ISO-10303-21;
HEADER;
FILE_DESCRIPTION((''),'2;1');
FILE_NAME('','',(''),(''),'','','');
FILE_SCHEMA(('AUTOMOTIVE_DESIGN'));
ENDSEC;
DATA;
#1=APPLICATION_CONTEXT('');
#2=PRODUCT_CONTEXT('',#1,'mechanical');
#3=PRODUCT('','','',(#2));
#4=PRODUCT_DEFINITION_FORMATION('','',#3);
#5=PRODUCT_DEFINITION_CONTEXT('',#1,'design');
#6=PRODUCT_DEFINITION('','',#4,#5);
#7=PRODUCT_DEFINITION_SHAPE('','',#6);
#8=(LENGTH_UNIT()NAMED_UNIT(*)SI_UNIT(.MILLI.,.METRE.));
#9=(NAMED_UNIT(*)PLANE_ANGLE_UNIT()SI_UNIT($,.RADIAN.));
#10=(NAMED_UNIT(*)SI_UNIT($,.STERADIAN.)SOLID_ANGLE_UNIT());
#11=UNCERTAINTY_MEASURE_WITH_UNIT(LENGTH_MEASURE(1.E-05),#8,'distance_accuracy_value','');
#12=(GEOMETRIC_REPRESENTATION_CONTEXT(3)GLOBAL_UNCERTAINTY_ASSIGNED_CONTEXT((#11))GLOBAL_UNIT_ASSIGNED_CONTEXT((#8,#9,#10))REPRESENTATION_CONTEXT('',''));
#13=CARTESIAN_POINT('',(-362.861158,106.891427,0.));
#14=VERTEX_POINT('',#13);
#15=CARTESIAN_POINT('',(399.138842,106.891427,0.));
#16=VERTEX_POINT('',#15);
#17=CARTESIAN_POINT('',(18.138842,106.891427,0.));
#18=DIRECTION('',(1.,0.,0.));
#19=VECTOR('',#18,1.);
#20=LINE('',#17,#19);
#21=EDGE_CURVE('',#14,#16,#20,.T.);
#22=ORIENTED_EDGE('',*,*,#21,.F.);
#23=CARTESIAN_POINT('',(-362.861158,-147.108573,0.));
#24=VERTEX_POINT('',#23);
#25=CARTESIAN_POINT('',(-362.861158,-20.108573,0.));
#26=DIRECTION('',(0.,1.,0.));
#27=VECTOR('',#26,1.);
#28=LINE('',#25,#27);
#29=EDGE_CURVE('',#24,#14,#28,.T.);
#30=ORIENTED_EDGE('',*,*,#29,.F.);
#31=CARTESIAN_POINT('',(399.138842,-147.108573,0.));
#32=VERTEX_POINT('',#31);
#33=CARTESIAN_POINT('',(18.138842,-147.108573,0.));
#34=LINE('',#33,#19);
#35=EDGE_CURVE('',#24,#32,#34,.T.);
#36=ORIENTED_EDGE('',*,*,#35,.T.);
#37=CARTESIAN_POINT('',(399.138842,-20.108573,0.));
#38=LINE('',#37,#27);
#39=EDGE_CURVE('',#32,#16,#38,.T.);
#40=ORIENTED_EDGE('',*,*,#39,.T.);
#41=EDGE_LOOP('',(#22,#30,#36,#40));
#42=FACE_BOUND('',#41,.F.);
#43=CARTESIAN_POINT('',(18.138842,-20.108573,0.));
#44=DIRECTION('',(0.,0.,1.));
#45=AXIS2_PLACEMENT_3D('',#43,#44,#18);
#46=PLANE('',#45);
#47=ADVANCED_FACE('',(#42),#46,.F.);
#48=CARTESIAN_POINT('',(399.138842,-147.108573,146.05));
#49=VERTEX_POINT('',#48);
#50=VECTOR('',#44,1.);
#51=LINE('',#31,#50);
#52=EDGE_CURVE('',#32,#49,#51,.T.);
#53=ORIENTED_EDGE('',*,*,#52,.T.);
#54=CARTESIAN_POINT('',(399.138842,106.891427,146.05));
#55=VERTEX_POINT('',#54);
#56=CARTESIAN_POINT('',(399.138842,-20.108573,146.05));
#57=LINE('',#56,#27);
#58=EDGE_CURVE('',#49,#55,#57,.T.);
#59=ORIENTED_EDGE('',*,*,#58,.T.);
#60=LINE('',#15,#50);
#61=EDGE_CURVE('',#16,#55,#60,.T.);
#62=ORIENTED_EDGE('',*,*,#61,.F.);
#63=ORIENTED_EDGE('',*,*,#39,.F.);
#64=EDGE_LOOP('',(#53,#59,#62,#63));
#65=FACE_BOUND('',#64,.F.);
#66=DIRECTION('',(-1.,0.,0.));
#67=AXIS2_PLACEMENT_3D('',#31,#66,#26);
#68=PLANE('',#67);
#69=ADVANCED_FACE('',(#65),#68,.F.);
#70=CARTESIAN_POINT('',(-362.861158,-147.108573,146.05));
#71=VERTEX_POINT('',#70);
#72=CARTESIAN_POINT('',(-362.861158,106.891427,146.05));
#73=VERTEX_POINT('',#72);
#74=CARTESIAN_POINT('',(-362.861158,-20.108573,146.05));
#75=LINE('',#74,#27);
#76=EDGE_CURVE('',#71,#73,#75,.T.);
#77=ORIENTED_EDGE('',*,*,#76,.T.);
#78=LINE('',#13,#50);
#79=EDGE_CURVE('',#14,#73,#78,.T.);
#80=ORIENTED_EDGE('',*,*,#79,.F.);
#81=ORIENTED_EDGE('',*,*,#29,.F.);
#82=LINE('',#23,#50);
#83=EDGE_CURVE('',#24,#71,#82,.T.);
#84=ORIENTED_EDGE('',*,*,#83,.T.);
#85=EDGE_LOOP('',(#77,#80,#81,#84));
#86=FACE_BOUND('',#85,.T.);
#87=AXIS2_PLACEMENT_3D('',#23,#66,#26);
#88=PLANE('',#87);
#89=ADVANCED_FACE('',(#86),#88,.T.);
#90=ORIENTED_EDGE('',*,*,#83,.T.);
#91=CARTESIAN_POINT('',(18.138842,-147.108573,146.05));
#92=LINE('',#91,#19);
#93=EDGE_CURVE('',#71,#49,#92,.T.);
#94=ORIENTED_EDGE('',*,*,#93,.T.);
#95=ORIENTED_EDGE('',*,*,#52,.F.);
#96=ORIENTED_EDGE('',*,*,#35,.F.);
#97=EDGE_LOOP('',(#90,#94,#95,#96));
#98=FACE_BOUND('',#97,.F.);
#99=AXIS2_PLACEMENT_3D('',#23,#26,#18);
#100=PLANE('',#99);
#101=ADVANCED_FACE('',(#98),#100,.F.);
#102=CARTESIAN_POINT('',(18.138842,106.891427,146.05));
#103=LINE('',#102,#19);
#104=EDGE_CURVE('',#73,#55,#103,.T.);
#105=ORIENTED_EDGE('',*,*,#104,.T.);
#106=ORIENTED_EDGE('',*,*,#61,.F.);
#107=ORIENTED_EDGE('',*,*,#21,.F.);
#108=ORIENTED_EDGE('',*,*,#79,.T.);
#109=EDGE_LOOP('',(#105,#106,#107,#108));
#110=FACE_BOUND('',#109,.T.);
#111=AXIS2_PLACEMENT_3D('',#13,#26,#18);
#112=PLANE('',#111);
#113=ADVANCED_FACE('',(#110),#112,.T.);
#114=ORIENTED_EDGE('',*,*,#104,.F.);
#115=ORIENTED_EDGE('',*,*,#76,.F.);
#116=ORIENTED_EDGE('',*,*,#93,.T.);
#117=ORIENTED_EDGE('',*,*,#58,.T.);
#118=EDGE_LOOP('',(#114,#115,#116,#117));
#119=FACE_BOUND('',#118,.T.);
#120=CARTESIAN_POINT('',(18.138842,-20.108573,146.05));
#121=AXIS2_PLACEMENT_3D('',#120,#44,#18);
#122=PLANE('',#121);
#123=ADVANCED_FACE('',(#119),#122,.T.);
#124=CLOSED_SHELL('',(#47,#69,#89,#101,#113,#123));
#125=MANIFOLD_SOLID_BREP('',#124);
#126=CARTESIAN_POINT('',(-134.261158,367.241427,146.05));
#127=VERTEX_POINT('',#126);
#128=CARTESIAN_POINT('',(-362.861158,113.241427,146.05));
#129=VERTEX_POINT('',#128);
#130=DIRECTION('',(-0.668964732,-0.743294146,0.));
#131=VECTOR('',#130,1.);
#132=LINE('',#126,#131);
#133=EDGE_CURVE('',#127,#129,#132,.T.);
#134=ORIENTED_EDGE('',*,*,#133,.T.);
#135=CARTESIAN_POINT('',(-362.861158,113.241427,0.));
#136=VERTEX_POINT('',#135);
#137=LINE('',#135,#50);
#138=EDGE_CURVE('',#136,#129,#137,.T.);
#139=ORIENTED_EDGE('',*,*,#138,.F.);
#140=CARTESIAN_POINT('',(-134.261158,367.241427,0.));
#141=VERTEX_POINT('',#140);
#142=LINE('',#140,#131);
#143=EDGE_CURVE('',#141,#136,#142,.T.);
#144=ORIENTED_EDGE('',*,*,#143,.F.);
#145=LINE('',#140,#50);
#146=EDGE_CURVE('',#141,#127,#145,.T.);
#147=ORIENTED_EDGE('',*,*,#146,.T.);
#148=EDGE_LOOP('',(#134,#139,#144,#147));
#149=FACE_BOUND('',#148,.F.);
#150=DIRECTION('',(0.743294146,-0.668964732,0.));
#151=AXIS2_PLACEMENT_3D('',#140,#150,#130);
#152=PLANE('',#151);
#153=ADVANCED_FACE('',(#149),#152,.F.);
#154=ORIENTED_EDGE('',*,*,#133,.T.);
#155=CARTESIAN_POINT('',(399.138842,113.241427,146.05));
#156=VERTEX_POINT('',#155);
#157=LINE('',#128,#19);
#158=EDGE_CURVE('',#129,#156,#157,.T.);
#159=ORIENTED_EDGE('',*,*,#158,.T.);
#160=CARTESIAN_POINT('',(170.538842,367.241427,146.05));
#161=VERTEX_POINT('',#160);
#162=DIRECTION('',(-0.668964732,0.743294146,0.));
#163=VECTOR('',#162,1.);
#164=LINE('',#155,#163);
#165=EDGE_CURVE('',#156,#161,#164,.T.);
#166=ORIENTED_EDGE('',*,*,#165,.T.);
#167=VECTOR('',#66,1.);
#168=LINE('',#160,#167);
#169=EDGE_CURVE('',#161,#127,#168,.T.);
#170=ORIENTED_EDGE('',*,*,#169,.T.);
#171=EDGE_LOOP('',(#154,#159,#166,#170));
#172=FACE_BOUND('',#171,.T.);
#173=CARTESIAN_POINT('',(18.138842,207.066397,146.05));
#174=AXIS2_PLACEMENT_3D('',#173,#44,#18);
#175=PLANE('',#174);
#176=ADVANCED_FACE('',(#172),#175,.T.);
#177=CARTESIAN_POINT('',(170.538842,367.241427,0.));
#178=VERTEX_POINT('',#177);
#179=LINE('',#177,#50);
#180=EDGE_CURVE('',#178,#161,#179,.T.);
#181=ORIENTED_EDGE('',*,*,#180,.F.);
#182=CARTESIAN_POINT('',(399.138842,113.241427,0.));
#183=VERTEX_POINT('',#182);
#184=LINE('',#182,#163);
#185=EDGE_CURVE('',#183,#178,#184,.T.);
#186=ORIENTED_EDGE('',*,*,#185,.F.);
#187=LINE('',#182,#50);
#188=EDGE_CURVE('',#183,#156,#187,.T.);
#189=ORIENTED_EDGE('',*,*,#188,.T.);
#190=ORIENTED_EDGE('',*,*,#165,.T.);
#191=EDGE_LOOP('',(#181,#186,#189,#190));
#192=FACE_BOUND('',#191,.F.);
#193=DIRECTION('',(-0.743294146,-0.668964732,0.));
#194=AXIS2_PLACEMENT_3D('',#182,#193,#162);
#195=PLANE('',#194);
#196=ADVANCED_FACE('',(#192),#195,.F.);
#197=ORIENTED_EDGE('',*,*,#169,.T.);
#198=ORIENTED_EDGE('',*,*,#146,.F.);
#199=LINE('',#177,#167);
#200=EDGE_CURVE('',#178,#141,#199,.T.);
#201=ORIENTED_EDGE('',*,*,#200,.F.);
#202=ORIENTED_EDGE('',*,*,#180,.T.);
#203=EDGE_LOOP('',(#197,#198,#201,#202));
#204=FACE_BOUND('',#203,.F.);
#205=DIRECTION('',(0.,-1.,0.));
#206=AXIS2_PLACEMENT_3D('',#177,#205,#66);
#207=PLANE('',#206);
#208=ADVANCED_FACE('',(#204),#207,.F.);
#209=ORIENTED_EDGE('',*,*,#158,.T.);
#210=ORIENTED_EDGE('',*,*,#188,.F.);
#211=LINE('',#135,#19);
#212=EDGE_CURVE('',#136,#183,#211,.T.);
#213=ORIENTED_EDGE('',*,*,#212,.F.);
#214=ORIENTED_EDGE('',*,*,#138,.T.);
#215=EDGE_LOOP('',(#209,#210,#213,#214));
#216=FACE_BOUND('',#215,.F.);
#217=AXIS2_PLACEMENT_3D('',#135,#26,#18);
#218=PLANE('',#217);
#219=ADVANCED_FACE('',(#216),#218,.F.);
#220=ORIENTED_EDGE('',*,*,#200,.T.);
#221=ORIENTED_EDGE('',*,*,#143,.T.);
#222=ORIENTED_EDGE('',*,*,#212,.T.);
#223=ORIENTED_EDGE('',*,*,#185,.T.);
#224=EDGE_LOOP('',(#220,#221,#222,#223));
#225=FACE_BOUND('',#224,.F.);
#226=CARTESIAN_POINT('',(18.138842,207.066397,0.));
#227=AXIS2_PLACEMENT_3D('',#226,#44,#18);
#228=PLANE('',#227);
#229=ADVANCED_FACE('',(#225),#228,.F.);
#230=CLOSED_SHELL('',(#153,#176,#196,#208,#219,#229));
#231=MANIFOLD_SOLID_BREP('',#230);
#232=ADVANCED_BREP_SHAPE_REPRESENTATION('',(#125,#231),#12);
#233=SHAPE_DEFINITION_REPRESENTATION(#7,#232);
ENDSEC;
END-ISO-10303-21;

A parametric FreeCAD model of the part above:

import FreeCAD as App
import Part
import Sketcher
from FreeCAD import Vector
Q = App.Units.Quantity


def add_polygon(sketch, points):
    """Adds a closed chain of lines whose ends are joined by coincident constraints."""
    first, n = sketch.GeometryCount, len(points)
    for a, b in zip(points, points[1:] + points[:1]):
        sketch.addGeometry(Part.LineSegment(App.Vector(*a, 0), App.Vector(*b, 0)), False)
    for i in range(n):
        sketch.addConstraint(Sketcher.Constraint("Coincident", first + i, 2, first + (i + 1) % n, 1))

doc = App.newDocument("Part")
body = doc.addObject("PartDesign::Body", "Body")

sketch1 = body.newObject("Sketcher::SketchObject", "Sketch")
sketch1.AttachmentSupport = (doc.getObject("XY_Plane"), [""])
sketch1.MapMode = "FlatFace"
add_polygon(sketch1, [(-363, 107), (-363, -147), (399, -147), (399, 107)])
sketch1.addConstraint(Sketcher.Constraint("Vertical", 0))
sketch1.addConstraint(Sketcher.Constraint("Horizontal", 1))
sketch1.addConstraint(Sketcher.Constraint("Vertical", 2))
sketch1.addConstraint(Sketcher.Constraint("Horizontal", 3))
sketch1.addConstraint(Sketcher.Constraint("DistanceX", 1, 1, 1, 2, Q("30 in")))
sketch1.addConstraint(Sketcher.Constraint("DistanceY", 0, 2, 0, 1, Q("10 in")))
sketch1.addConstraint(Sketcher.Constraint("DistanceX", 0, 2, -1, 1, Q("362.861158 mm")))
sketch1.addConstraint(Sketcher.Constraint("DistanceY", 0, 2, -1, 1, Q("147.108573 mm")))
pad1 = body.newObject("PartDesign::Pad", "Pad")
pad1.Profile = sketch1
pad1.Length = Q("5.75 in")
body2 = doc.addObject("PartDesign::Body", "Body001")

sketch2 = body2.newObject("Sketcher::SketchObject", "Sketch001")
sketch2.AttachmentSupport = (doc.getObject("XY_Plane001"), [""])
sketch2.MapMode = "FlatFace"
add_polygon(sketch2, [(-134, 367), (-363, 113), (399, 113), (171, 367)])
sketch2.addConstraint(Sketcher.Constraint("Horizontal", 1))
sketch2.addConstraint(Sketcher.Constraint("Horizontal", 3))
sketch2.addConstraint(Sketcher.Constraint("Equal", 0, 2))
sketch2.addConstraint(Sketcher.Constraint("DistanceX", 1, 1, 1, 2, Q("30 in")))
sketch2.addConstraint(Sketcher.Constraint("DistanceX", 3, 2, 3, 1, Q("12 in")))
sketch2.addConstraint(Sketcher.Constraint("DistanceY", 1, 2, 2, 2, Q("10 in")))
sketch2.addConstraint(Sketcher.Constraint("DistanceX", 0, 2, -1, 1, Q("362.861158 mm")))
sketch2.addConstraint(Sketcher.Constraint("DistanceY", -1, 1, 0, 2, Q("113.241427 mm")))
pad2 = body2.newObject("PartDesign::Pad", "Pad001")
pad2.Profile = sketch2
pad2.Length = Q("5.75 in")

doc.recompute()
